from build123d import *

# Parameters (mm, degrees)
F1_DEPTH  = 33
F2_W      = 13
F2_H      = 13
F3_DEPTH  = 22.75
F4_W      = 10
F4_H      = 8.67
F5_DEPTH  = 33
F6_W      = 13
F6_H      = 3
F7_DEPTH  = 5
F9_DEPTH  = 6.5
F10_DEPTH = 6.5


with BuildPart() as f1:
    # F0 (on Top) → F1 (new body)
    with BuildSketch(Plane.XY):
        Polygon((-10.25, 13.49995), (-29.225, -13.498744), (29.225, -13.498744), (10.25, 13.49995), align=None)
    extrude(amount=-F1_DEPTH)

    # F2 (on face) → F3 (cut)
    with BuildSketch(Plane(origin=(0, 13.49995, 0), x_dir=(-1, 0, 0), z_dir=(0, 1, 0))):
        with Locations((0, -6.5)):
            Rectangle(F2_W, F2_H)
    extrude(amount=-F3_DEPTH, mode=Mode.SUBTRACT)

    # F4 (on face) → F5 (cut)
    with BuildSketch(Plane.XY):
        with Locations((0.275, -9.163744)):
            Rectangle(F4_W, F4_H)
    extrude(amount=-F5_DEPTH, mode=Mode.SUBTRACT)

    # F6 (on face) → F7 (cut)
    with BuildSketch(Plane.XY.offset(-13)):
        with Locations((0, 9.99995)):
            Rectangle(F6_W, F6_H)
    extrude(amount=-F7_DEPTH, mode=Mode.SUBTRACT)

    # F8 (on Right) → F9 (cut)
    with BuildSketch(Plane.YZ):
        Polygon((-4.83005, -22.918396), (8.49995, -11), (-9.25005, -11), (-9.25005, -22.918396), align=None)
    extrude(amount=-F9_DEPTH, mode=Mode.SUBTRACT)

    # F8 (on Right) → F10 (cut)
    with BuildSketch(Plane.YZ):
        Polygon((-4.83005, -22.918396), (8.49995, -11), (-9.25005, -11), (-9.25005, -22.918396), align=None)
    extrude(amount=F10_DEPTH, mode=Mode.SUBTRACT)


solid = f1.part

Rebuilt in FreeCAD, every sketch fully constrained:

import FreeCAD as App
import Part
import Sketcher
Q = App.Units.Quantity

doc = App.newDocument("Part")
params = doc.addObject("Spreadsheet::Sheet", "Params")
for row, (alias, value) in enumerate([
    ("sketch1_width", "20.5 mm"),
    ("sketch1_width2", "58.45 mm"),
    ("pad1_length", "33 mm"),
    ("sketch2_width", "13 mm"),
    ("pocket1_length", "22.75 mm"),
    ("sketch3_width", "10 mm"),
    ("sketch3_height", "8.67 mm"),
    ("pocket2_length", "33 mm"),
    ("sketch4_width", "13 mm"),
    ("sketch4_height", "3 mm"),
    ("pocket3_length", "5 mm"),
    ("sketch5_width", "17.75 mm"),
    ("sketch5_width2", "4.42 mm"),
    ("pocket4_length", "6.5 mm"),
    ("sketch6_width", "17.75 mm"),
    ("sketch6_width2", "4.42 mm"),
    ("pocket5_length", "6.5 mm"),
], start=1):
    params.set(f"A{row}", alias)
    params.set(f"B{row}", "=" + value)
    params.setAlias(f"B{row}", alias)

body = doc.addObject("PartDesign::Body", "Body")

# Sketch on XY plane
sketch1 = body.newObject("Sketcher::SketchObject", "Sketch")
sketch1.AttachmentSupport = (doc.getObject("XY_Plane"), [""])
sketch1.MapMode = "FlatFace"
sketch1.addGeometry([
    Part.LineSegment(App.Vector(-10, 13, 0), App.Vector(-29, -13, 0)),
    Part.LineSegment(App.Vector(-29, -13, 0), App.Vector(29, -13, 0)),
    Part.LineSegment(App.Vector(29, -13, 0), App.Vector(10, 13, 0)),
    Part.LineSegment(App.Vector(10, 13, 0), App.Vector(-10, 13, 0)),
], False)
sketch1.addConstraint([
    Sketcher.Constraint("Coincident", 0, 2, 1, 1),
    Sketcher.Constraint("Coincident", 1, 2, 2, 1),
    Sketcher.Constraint("Coincident", 2, 2, 3, 1),
    Sketcher.Constraint("Coincident", 3, 2, 0, 1),
    Sketcher.Constraint("Horizontal", 1),
    Sketcher.Constraint("Horizontal", 3),
    Sketcher.Constraint("Equal", 0, 2),
    Sketcher.Constraint("DistanceX", 3, 2, 3, 1, 20.5),
    Sketcher.Constraint("Angle", 0, Q("-125.1 deg")),
    Sketcher.Constraint("DistanceX", 1, 1, 1, 2, 58.45),
    Sketcher.Constraint("DistanceX", -1, 1, 2, 2, 10.25),
    Sketcher.Constraint("DistanceY", -1, 1, 2, 2, 13.49995),
])
sketch1.setExpression("Constraints[7]", "Params.sketch1_width")
sketch1.setExpression("Constraints[9]", "Params.sketch1_width2")
pad1 = body.newObject("PartDesign::Pad", "Pad")
pad1.Profile = sketch1
pad1.setExpression("Length", "Params.pad1_length")
pad1.Reversed = True

# Sketch on XZ plane
sketch2 = body.newObject("Sketcher::SketchObject", "Sketch001")
sketch2.AttachmentSupport = (doc.getObject("XZ_Plane"), [""])
sketch2.MapMode = "FlatFace"
sketch2.AttachmentOffset = App.Placement(App.Vector(0, 0, -13.49995), App.Rotation())
sketch2.addGeometry([
    Part.LineSegment(App.Vector(6, 0, 0), App.Vector(6, -13, 0)),
    Part.LineSegment(App.Vector(6, -13, 0), App.Vector(-6, -13, 0)),
    Part.LineSegment(App.Vector(-6, -13, 0), App.Vector(-6, 0, 0)),
    Part.LineSegment(App.Vector(-6, 0, 0), App.Vector(6, 0, 0)),
], False)
sketch2.addConstraint([
    Sketcher.Constraint("Coincident", 0, 2, 1, 1),
    Sketcher.Constraint("Coincident", 1, 2, 2, 1),
    Sketcher.Constraint("Coincident", 2, 2, 3, 1),
    Sketcher.Constraint("Coincident", 3, 2, 0, 1),
    Sketcher.Constraint("Vertical", 0),
    Sketcher.Constraint("Horizontal", 1),
    Sketcher.Constraint("Vertical", 2),
    Sketcher.Constraint("Horizontal", 3),
    Sketcher.Constraint("Symmetric", 2, 2, 3, 2, -1, 1),
    Sketcher.Constraint("Equal", 3, 0),
    Sketcher.Constraint("DistanceX", 1, 2, 1, 1, 13.0),
])
sketch2.setExpression("Constraints[10]", "Params.sketch2_width")
pocket1 = body.newObject("PartDesign::Pocket", "Pocket")
pocket1.Profile = sketch2
pocket1.setExpression("Length", "Params.pocket1_length")
pocket1.Reversed = True

# Sketch on XY plane
sketch3 = body.newObject("Sketcher::SketchObject", "Sketch002")
sketch3.AttachmentSupport = (doc.getObject("XY_Plane"), [""])
sketch3.MapMode = "FlatFace"
sketch3.addGeometry([
    Part.LineSegment(App.Vector(-5, -5, 0), App.Vector(-5, -13, 0)),
    Part.LineSegment(App.Vector(-5, -13, 0), App.Vector(5, -13, 0)),
    Part.LineSegment(App.Vector(5, -13, 0), App.Vector(5, -5, 0)),
    Part.LineSegment(App.Vector(5, -5, 0), App.Vector(-5, -5, 0)),
], False)
sketch3.addConstraint([
    Sketcher.Constraint("Coincident", 0, 2, 1, 1),
    Sketcher.Constraint("Coincident", 1, 2, 2, 1),
    Sketcher.Constraint("Coincident", 2, 2, 3, 1),
    Sketcher.Constraint("Coincident", 3, 2, 0, 1),
    Sketcher.Constraint("Vertical", 0),
    Sketcher.Constraint("Horizontal", 1),
    Sketcher.Constraint("Vertical", 2),
    Sketcher.Constraint("Horizontal", 3),
    Sketcher.Constraint("DistanceX", 1, 1, 1, 2, 10.0),
    Sketcher.Constraint("DistanceY", 0, 2, 0, 1, 8.67),
    Sketcher.Constraint("DistanceX", 0, 2, -1, 1, 4.725),
    Sketcher.Constraint("DistanceY", 0, 2, -1, 1, 13.498744),
])
sketch3.setExpression("Constraints[8]", "Params.sketch3_width")
sketch3.setExpression("Constraints[9]", "Params.sketch3_height")
pocket2 = body.newObject("PartDesign::Pocket", "Pocket001")
pocket2.Profile = sketch3
pocket2.setExpression("Length", "Params.pocket2_length")

# Sketch on XY plane
sketch4 = body.newObject("Sketcher::SketchObject", "Sketch003")
sketch4.AttachmentSupport = (doc.getObject("XY_Plane"), [""])
sketch4.MapMode = "FlatFace"
sketch4.AttachmentOffset = App.Placement(App.Vector(0, 0, -13), App.Rotation())
sketch4.addGeometry([
    Part.LineSegment(App.Vector(-6.5, 11.5, 0), App.Vector(-6.5, 8.5, 0)),
    Part.LineSegment(App.Vector(-6.5, 8.5, 0), App.Vector(6.5, 8.5, 0)),
    Part.LineSegment(App.Vector(6.5, 8.5, 0), App.Vector(6.5, 11.5, 0)),
    Part.LineSegment(App.Vector(6.5, 11.5, 0), App.Vector(-6.5, 11.5, 0)),
], False)
sketch4.addConstraint([
    Sketcher.Constraint("Coincident", 0, 2, 1, 1),
    Sketcher.Constraint("Coincident", 1, 2, 2, 1),
    Sketcher.Constraint("Coincident", 2, 2, 3, 1),
    Sketcher.Constraint("Coincident", 3, 2, 0, 1),
    Sketcher.Constraint("Vertical", 0),
    Sketcher.Constraint("Horizontal", 1),
    Sketcher.Constraint("Vertical", 2),
    Sketcher.Constraint("Horizontal", 3),
    Sketcher.Constraint("DistanceX", 1, 1, 1, 2, 13.0),
    Sketcher.Constraint("DistanceY", 0, 2, 0, 1, 3.0),
    Sketcher.Constraint("DistanceX", 0, 2, -1, 1, 6.5),
    Sketcher.Constraint("DistanceY", -1, 1, 0, 2, 8.49995),
])
sketch4.setExpression("Constraints[8]", "Params.sketch4_width")
sketch4.setExpression("Constraints[9]", "Params.sketch4_height")
pocket3 = body.newObject("PartDesign::Pocket", "Pocket002")
pocket3.Profile = sketch4
pocket3.setExpression("Length", "Params.pocket3_length")

# Sketch on YZ plane
sketch5 = body.newObject("Sketcher::SketchObject", "Sketch004")
sketch5.AttachmentSupport = (doc.getObject("YZ_Plane"), [""])
sketch5.MapMode = "FlatFace"
sketch5.addGeometry([
    Part.LineSegment(App.Vector(-4.8, -22.9, 0), App.Vector(8.5, -11, 0)),
    Part.LineSegment(App.Vector(8.5, -11, 0), App.Vector(-9.3, -11, 0)),
    Part.LineSegment(App.Vector(-9.3, -11, 0), App.Vector(-9.3, -22.9, 0)),
    Part.LineSegment(App.Vector(-9.3, -22.9, 0), App.Vector(-4.8, -22.9, 0)),
], False)
sketch5.addConstraint([
    Sketcher.Constraint("Coincident", 0, 2, 1, 1),
    Sketcher.Constraint("Coincident", 1, 2, 2, 1),
    Sketcher.Constraint("Coincident", 2, 2, 3, 1),
    Sketcher.Constraint("Coincident", 3, 2, 0, 1),
    Sketcher.Constraint("Horizontal", 1),
    Sketcher.Constraint("Vertical", 2),
    Sketcher.Constraint("Horizontal", 3),
    Sketcher.Constraint("DistanceY", 0, 2, -1, 1, 11.0),
    Sketcher.Constraint("Angle", 0, Q("41.800001 deg")),
    Sketcher.Constraint("DistanceX", 1, 2, 1, 1, 17.75),
    Sketcher.Constraint("DistanceX", 3, 1, 3, 2, 4.42),
    Sketcher.Constraint("DistanceX", -1, 1, 0, 2, 8.49995),
])
sketch5.setExpression("Constraints[9]", "Params.sketch5_width")
sketch5.setExpression("Constraints[10]", "Params.sketch5_width2")
pocket4 = body.newObject("PartDesign::Pocket", "Pocket003")
pocket4.Profile = sketch5
pocket4.setExpression("Length", "Params.pocket4_length")

# Sketch on YZ plane
sketch6 = body.newObject("Sketcher::SketchObject", "Sketch005")
sketch6.AttachmentSupport = (doc.getObject("YZ_Plane"), [""])
sketch6.MapMode = "FlatFace"
sketch6.addGeometry([
    Part.LineSegment(App.Vector(-4.8, -22.9, 0), App.Vector(8.5, -11, 0)),
    Part.LineSegment(App.Vector(8.5, -11, 0), App.Vector(-9.3, -11, 0)),
    Part.LineSegment(App.Vector(-9.3, -11, 0), App.Vector(-9.3, -22.9, 0)),
    Part.LineSegment(App.Vector(-9.3, -22.9, 0), App.Vector(-4.8, -22.9, 0)),
], False)
sketch6.addConstraint([
    Sketcher.Constraint("Coincident", 0, 2, 1, 1),
    Sketcher.Constraint("Coincident", 1, 2, 2, 1),
    Sketcher.Constraint("Coincident", 2, 2, 3, 1),
    Sketcher.Constraint("Coincident", 3, 2, 0, 1),
    Sketcher.Constraint("Horizontal", 1),
    Sketcher.Constraint("Vertical", 2),
    Sketcher.Constraint("Horizontal", 3),
    Sketcher.Constraint("DistanceY", 0, 2, -1, 1, 11.0),
    Sketcher.Constraint("Angle", 0, Q("41.800001 deg")),
    Sketcher.Constraint("DistanceX", 1, 2, 1, 1, 17.75),
    Sketcher.Constraint("DistanceX", 3, 1, 3, 2, 4.42),
    Sketcher.Constraint("DistanceX", -1, 1, 0, 2, 8.49995),
])
sketch6.setExpression("Constraints[9]", "Params.sketch6_width")
sketch6.setExpression("Constraints[10]", "Params.sketch6_width2")
pocket5 = body.newObject("PartDesign::Pocket", "Pocket004")
pocket5.Profile = sketch6
pocket5.setExpression("Length", "Params.pocket5_length")
pocket5.Reversed = True

doc.recompute()
